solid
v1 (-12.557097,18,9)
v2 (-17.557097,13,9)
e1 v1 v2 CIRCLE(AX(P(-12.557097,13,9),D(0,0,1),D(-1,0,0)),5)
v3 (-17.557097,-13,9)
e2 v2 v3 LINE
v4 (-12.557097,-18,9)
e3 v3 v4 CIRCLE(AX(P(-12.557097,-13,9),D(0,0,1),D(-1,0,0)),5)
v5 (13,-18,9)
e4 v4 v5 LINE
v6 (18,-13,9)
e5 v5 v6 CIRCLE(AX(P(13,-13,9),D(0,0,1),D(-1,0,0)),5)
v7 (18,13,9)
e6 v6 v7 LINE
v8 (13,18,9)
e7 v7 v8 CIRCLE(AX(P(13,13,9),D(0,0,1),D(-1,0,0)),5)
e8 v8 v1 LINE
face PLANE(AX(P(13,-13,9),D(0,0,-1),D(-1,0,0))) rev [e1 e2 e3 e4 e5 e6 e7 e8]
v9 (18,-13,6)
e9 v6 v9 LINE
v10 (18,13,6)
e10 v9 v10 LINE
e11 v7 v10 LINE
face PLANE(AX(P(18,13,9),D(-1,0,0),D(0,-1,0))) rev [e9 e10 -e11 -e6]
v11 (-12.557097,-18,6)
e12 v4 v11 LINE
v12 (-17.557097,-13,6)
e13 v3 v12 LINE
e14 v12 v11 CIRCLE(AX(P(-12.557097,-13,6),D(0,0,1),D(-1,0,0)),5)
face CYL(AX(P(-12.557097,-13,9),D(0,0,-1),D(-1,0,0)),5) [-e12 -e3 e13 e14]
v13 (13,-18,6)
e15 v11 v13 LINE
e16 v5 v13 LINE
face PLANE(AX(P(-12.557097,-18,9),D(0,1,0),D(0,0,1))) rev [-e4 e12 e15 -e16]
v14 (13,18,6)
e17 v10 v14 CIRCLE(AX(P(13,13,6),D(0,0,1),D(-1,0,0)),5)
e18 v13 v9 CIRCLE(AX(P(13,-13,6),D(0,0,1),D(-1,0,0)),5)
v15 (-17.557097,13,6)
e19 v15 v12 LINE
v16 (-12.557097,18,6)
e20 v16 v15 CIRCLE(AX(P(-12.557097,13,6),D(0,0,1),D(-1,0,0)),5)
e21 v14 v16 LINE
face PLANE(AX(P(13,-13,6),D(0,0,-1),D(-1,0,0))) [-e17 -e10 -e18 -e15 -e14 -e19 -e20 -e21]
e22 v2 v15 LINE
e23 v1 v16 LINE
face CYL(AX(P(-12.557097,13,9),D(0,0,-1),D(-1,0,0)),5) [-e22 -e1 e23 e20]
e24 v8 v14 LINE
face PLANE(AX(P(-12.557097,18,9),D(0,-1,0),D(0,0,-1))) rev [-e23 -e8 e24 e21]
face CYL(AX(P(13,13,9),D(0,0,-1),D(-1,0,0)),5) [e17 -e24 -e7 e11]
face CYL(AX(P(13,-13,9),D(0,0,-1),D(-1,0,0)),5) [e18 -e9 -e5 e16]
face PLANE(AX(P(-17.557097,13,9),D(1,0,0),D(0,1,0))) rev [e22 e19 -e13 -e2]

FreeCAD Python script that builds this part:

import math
import FreeCAD as App
import Part
import Sketcher

V = App.Vector

doc = App.newDocument("Part")
body = doc.addObject("PartDesign::Body", "Body")

# Sketch on XY plane
sketch1 = body.newObject("Sketcher::SketchObject", "Sketch")
sketch1.AttachmentSupport = (doc.getObject("XY_Plane"), [""])
sketch1.MapMode = "FlatFace"
sketch1.AttachmentOffset = App.Placement(V(0, 0, 6), App.Rotation())
sketch1.addGeometry(Part.LineSegment(V(13, 18, 0), V(-13, 18, 0)), False)
sketch1.addGeometry(Part.ArcOfCircle(Part.Circle(V(-13, 13, 0), V(0, 0, 1), 5), math.radians(90), math.radians(180)), False)
sketch1.addGeometry(Part.LineSegment(V(-18, 13, 0), V(-18, -13, 0)), False)
sketch1.addGeometry(Part.ArcOfCircle(Part.Circle(V(-13, -13, 0), V(0, 0, 1), 5), math.radians(180), math.radians(270)), False)
sketch1.addGeometry(Part.LineSegment(V(-13, -18, 0), V(13, -18, 0)), False)
sketch1.addGeometry(Part.ArcOfCircle(Part.Circle(V(13, -13, 0), V(0, 0, 1), 5), math.radians(-90), math.radians(0)), False)
sketch1.addGeometry(Part.LineSegment(V(18, -13, 0), V(18, 13, 0)), False)
sketch1.addGeometry(Part.ArcOfCircle(Part.Circle(V(13, 13, 0), V(0, 0, 1), 5), math.radians(0), math.radians(90)), False)
sketch1.addConstraint(Sketcher.Constraint("Tangent", 0, 2, 1, 1))
sketch1.addConstraint(Sketcher.Constraint("Tangent", 1, 2, 2, 1))
sketch1.addConstraint(Sketcher.Constraint("Tangent", 2, 2, 3, 1))
sketch1.addConstraint(Sketcher.Constraint("Tangent", 3, 2, 4, 1))
sketch1.addConstraint(Sketcher.Constraint("Tangent", 4, 2, 5, 1))
sketch1.addConstraint(Sketcher.Constraint("Tangent", 5, 2, 6, 1))
sketch1.addConstraint(Sketcher.Constraint("Tangent", 6, 2, 7, 1))
sketch1.addConstraint(Sketcher.Constraint("Tangent", 7, 2, 0, 1))
sketch1.addConstraint(Sketcher.Constraint("Horizontal", 0))
sketch1.addConstraint(Sketcher.Constraint("Vertical", 2))
sketch1.addConstraint(Sketcher.Constraint("Horizontal", 4))
sketch1.addConstraint(Sketcher.Constraint("Vertical", 6))
sketch1.addConstraint(Sketcher.Constraint("Equal", 1, 3))
sketch1.addConstraint(Sketcher.Constraint("Equal", 3, 5))
sketch1.addConstraint(Sketcher.Constraint("Equal", 5, 7))
sketch1.addConstraint(Sketcher.Constraint("Radius", 1, 5.0))
sketch1.addConstraint(Sketcher.Constraint("DistanceY", 2, 2, 2, 1, 26.0))
sketch1.addConstraint(Sketcher.Constraint("DistanceY", -1, 1, 1, 3, 13.0))
sketch1.addConstraint(Sketcher.Constraint("DistanceX", -1, 1, 5, 3, 13.0))
sketch1.addConstraint(Sketcher.Constraint("DistanceX", 0, 2, 0, 1, 25.557097))
pad1 = body.newObject("PartDesign::Pad", "Pad")
pad1.Profile = sketch1
pad1.Length = 3

doc.recompute()
